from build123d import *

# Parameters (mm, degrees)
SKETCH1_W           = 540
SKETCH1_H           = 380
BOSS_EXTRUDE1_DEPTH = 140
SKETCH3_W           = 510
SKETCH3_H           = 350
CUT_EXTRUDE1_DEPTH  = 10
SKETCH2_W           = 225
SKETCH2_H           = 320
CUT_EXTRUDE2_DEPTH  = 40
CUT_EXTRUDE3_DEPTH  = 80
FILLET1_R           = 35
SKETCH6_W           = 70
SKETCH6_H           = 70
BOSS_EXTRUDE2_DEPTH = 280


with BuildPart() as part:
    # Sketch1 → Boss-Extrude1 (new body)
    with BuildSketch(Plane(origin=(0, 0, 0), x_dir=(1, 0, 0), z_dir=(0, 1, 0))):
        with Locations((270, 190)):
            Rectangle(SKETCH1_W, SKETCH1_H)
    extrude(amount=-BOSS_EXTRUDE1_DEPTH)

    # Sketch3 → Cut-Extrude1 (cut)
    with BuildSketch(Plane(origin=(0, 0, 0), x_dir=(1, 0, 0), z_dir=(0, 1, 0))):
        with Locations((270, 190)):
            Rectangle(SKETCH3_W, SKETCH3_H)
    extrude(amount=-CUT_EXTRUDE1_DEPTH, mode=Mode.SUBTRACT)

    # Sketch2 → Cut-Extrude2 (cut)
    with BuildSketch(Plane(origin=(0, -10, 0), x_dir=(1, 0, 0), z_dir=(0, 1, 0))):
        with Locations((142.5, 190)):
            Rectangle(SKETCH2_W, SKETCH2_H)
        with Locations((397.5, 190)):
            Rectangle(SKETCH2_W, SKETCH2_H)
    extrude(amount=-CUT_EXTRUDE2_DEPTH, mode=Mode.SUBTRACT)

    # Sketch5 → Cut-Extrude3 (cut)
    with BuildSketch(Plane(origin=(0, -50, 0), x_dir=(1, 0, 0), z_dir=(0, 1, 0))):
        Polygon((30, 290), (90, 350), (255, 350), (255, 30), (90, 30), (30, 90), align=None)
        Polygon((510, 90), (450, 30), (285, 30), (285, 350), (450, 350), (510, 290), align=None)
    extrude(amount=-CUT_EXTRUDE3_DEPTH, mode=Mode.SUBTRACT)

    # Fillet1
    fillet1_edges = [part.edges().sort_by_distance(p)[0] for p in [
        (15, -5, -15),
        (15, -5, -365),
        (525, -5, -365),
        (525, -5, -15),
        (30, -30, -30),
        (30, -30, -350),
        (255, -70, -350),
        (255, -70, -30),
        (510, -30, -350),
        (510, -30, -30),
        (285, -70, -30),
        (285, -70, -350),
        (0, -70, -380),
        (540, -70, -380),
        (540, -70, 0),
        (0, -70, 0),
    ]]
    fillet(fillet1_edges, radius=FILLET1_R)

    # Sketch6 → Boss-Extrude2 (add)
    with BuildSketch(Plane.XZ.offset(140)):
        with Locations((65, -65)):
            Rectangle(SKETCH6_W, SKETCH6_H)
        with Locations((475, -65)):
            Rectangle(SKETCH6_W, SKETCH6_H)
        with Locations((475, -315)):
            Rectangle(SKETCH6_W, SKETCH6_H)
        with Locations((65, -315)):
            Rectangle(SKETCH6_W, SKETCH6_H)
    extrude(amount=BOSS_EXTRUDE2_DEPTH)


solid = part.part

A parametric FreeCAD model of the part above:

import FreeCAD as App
import Part
import Sketcher
Q = App.Units.Quantity


def edges_at(feature, points):
    """Names of the edges that pass closest to the given points."""
    edges = feature.Shape.Edges
    near = lambda p: min(range(len(edges)), key=lambda i: edges[i].distToShape(Part.Vertex(*p))[0])
    return sorted({f"Edge{near(p) + 1}" for p in points})

doc = App.newDocument("Part")
body = doc.addObject("PartDesign::Body", "Body")

# Sketch on XZ plane
sketch1 = doc.addObject("Sketcher::SketchObject", "Sketch")
body.addObject(sketch1)
sketch1.AttachmentSupport = (doc.XZ_Plane, [""])
sketch1.MapMode = "FlatFace"
sketch1.addGeometry(Part.LineSegment(App.Vector(0, -380, 0), App.Vector(0, 0, 0)), False)
sketch1.addGeometry(Part.LineSegment(App.Vector(0, 0, 0), App.Vector(540, 0, 0)), False)
sketch1.addGeometry(Part.LineSegment(App.Vector(540, 0, 0), App.Vector(540, -380, 0)), False)
sketch1.addGeometry(Part.LineSegment(App.Vector(540, -380, 0), App.Vector(0, -380, 0)), False)
sketch1.addConstraint(Sketcher.Constraint("Coincident", 0, 2, 1, 1))
sketch1.addConstraint(Sketcher.Constraint("Coincident", 1, 2, 2, 1))
sketch1.addConstraint(Sketcher.Constraint("Coincident", 2, 2, 3, 1))
sketch1.addConstraint(Sketcher.Constraint("Coincident", 3, 2, 0, 1))
sketch1.addConstraint(Sketcher.Constraint("Vertical", 0))
sketch1.addConstraint(Sketcher.Constraint("Horizontal", 1))
sketch1.addConstraint(Sketcher.Constraint("Vertical", 2))
sketch1.addConstraint(Sketcher.Constraint("Horizontal", 3))
sketch1.addConstraint(Sketcher.Constraint("Coincident", 0, 2, -1, 1))
sketch1.addConstraint(Sketcher.Constraint("DistanceX", 1, 1, 1, 2, Q("540 mm")))
sketch1.addConstraint(Sketcher.Constraint("DistanceY", 0, 1, 0, 2, Q("380 mm")))
pad1 = doc.addObject("PartDesign::Pad", "Pad")
body.addObject(pad1)
pad1.Profile = sketch1
pad1.Length = 140

# Sketch on XZ plane
sketch2 = doc.addObject("Sketcher::SketchObject", "Sketch001")
body.addObject(sketch2)
sketch2.AttachmentSupport = (doc.XZ_Plane, [""])
sketch2.MapMode = "FlatFace"
sketch2.addGeometry(Part.LineSegment(App.Vector(15, -365, 0), App.Vector(15, -15, 0)), False)
sketch2.addGeometry(Part.LineSegment(App.Vector(15, -15, 0), App.Vector(525, -15, 0)), False)
sketch2.addGeometry(Part.LineSegment(App.Vector(525, -15, 0), App.Vector(525, -365, 0)), False)
sketch2.addGeometry(Part.LineSegment(App.Vector(525, -365, 0), App.Vector(15, -365, 0)), False)
sketch2.addConstraint(Sketcher.Constraint("Coincident", 0, 2, 1, 1))
sketch2.addConstraint(Sketcher.Constraint("Coincident", 1, 2, 2, 1))
sketch2.addConstraint(Sketcher.Constraint("Coincident", 2, 2, 3, 1))
sketch2.addConstraint(Sketcher.Constraint("Coincident", 3, 2, 0, 1))
sketch2.addConstraint(Sketcher.Constraint("Vertical", 0))
sketch2.addConstraint(Sketcher.Constraint("Horizontal", 1))
sketch2.addConstraint(Sketcher.Constraint("Vertical", 2))
sketch2.addConstraint(Sketcher.Constraint("Horizontal", 3))
sketch2.addConstraint(Sketcher.Constraint("DistanceX", 1, 1, 1, 2, Q("510 mm")))
sketch2.addConstraint(Sketcher.Constraint("DistanceY", 0, 1, 0, 2, Q("350 mm")))
sketch2.addConstraint(Sketcher.Constraint("DistanceX", -1, 1, 0, 2, Q("15 mm")))
sketch2.addConstraint(Sketcher.Constraint("DistanceY", 0, 2, -1, 1, Q("15 mm")))
pocket1 = doc.addObject("PartDesign::Pocket", "Pocket")
body.addObject(pocket1)
pocket1.Profile = sketch2
pocket1.Length = 10
pocket1.Reversed = True

# Sketch on XZ plane
sketch3 = doc.addObject("Sketcher::SketchObject", "Sketch002")
body.addObject(sketch3)
sketch3.AttachmentSupport = (doc.XZ_Plane, [""])
sketch3.MapMode = "FlatFace"
sketch3.AttachmentOffset = App.Placement(App.Vector(0, 0, 10), App.Rotation())
sketch3.addGeometry(Part.LineSegment(App.Vector(30, -350, 0), App.Vector(30, -30, 0)), False)
sketch3.addGeometry(Part.LineSegment(App.Vector(30, -30, 0), App.Vector(255, -30, 0)), False)
sketch3.addGeometry(Part.LineSegment(App.Vector(255, -30, 0), App.Vector(255, -350, 0)), False)
sketch3.addGeometry(Part.LineSegment(App.Vector(255, -350, 0), App.Vector(30, -350, 0)), False)
sketch3.addGeometry(Part.LineSegment(App.Vector(285, -350, 0), App.Vector(285, -30, 0)), False)
sketch3.addGeometry(Part.LineSegment(App.Vector(285, -30, 0), App.Vector(510, -30, 0)), False)
sketch3.addGeometry(Part.LineSegment(App.Vector(510, -30, 0), App.Vector(510, -350, 0)), False)
sketch3.addGeometry(Part.LineSegment(App.Vector(510, -350, 0), App.Vector(285, -350, 0)), False)
sketch3.addConstraint(Sketcher.Constraint("Coincident", 0, 2, 1, 1))
sketch3.addConstraint(Sketcher.Constraint("Coincident", 1, 2, 2, 1))
sketch3.addConstraint(Sketcher.Constraint("Coincident", 2, 2, 3, 1))
sketch3.addConstraint(Sketcher.Constraint("Coincident", 3, 2, 0, 1))
sketch3.addConstraint(Sketcher.Constraint("Coincident", 4, 2, 5, 1))
sketch3.addConstraint(Sketcher.Constraint("Coincident", 5, 2, 6, 1))
sketch3.addConstraint(Sketcher.Constraint("Coincident", 6, 2, 7, 1))
sketch3.addConstraint(Sketcher.Constraint("Coincident", 7, 2, 4, 1))
sketch3.addConstraint(Sketcher.Constraint("Vertical", 0))
sketch3.addConstraint(Sketcher.Constraint("Horizontal", 1))
sketch3.addConstraint(Sketcher.Constraint("Vertical", 2))
sketch3.addConstraint(Sketcher.Constraint("Horizontal", 3))
sketch3.addConstraint(Sketcher.Constraint("Vertical", 4))
sketch3.addConstraint(Sketcher.Constraint("Horizontal", 5))
sketch3.addConstraint(Sketcher.Constraint("Vertical", 6))
sketch3.addConstraint(Sketcher.Constraint("Horizontal", 7))
sketch3.addConstraint(Sketcher.Constraint("Horizontal", 1, 2, 4, 2))
sketch3.addConstraint(Sketcher.Constraint("Horizontal", 3, 2, 6, 2))
sketch3.addConstraint(Sketcher.Constraint("Equal", 3, 5))
sketch3.addConstraint(Sketcher.Constraint("DistanceX", 1, 1, 1, 2, Q("225 mm")))
sketch3.addConstraint(Sketcher.Constraint("DistanceY", 0, 1, 0, 2, Q("320 mm")))
sketch3.addConstraint(Sketcher.Constraint("DistanceX", -1, 1, 0, 2, Q("30 mm")))
sketch3.addConstraint(Sketcher.Constraint("DistanceY", 0, 2, -1, 1, Q("30 mm")))
sketch3.addConstraint(Sketcher.Constraint("DistanceX", -1, 1, 4, 2, Q("285 mm")))
pocket2 = doc.addObject("PartDesign::Pocket", "Pocket001")
body.addObject(pocket2)
pocket2.Profile = sketch3
pocket2.Length = 40
pocket2.Reversed = True

# Sketch on XZ plane
sketch4 = doc.addObject("Sketcher::SketchObject", "Sketch003")
body.addObject(sketch4)
sketch4.AttachmentSupport = (doc.XZ_Plane, [""])
sketch4.MapMode = "FlatFace"
sketch4.AttachmentOffset = App.Placement(App.Vector(0, 0, 50), App.Rotation())
sketch4.addGeometry(Part.LineSegment(App.Vector(90, -350, 0), App.Vector(30, -290, 0)), False)
sketch4.addGeometry(Part.LineSegment(App.Vector(30, -290, 0), App.Vector(30, -90, 0)), False)
sketch4.addGeometry(Part.LineSegment(App.Vector(30, -90, 0), App.Vector(90, -30, 0)), False)
sketch4.addGeometry(Part.LineSegment(App.Vector(90, -30, 0), App.Vector(255, -30, 0)), False)
sketch4.addGeometry(Part.LineSegment(App.Vector(255, -30, 0), App.Vector(255, -350, 0)), False)
sketch4.addGeometry(Part.LineSegment(App.Vector(255, -350, 0), App.Vector(90, -350, 0)), False)
sketch4.addGeometry(Part.LineSegment(App.Vector(450, -30, 0), App.Vector(510, -90, 0)), False)
sketch4.addGeometry(Part.LineSegment(App.Vector(510, -90, 0), App.Vector(510, -290, 0)), False)
sketch4.addGeometry(Part.LineSegment(App.Vector(510, -290, 0), App.Vector(450, -350, 0)), False)
sketch4.addGeometry(Part.LineSegment(App.Vector(450, -350, 0), App.Vector(285, -350, 0)), False)
sketch4.addGeometry(Part.LineSegment(App.Vector(285, -350, 0), App.Vector(285, -30, 0)), False)
sketch4.addGeometry(Part.LineSegment(App.Vector(285, -30, 0), App.Vector(450, -30, 0)), False)
sketch4.addConstraint(Sketcher.Constraint("Coincident", 0, 2, 1, 1))
sketch4.addConstraint(Sketcher.Constraint("Coincident", 1, 2, 2, 1))
sketch4.addConstraint(Sketcher.Constraint("Coincident", 2, 2, 3, 1))
sketch4.addConstraint(Sketcher.Constraint("Coincident", 3, 2, 4, 1))
sketch4.addConstraint(Sketcher.Constraint("Coincident", 4, 2, 5, 1))
sketch4.addConstraint(Sketcher.Constraint("Coincident", 5, 2, 0, 1))
sketch4.addConstraint(Sketcher.Constraint("Coincident", 6, 2, 7, 1))
sketch4.addConstraint(Sketcher.Constraint("Coincident", 7, 2, 8, 1))
sketch4.addConstraint(Sketcher.Constraint("Coincident", 8, 2, 9, 1))
sketch4.addConstraint(Sketcher.Constraint("Coincident", 9, 2, 10, 1))
sketch4.addConstraint(Sketcher.Constraint("Coincident", 10, 2, 11, 1))
sketch4.addConstraint(Sketcher.Constraint("Coincident", 11, 2, 6, 1))
sketch4.addConstraint(Sketcher.Constraint("Vertical", 1))
sketch4.addConstraint(Sketcher.Constraint("Horizontal", 3))
sketch4.addConstraint(Sketcher.Constraint("Vertical", 4))
sketch4.addConstraint(Sketcher.Constraint("Horizontal", 5))
sketch4.addConstraint(Sketcher.Constraint("Vertical", 7))
sketch4.addConstraint(Sketcher.Constraint("Horizontal", 9))
sketch4.addConstraint(Sketcher.Constraint("Vertical", 10))
sketch4.addConstraint(Sketcher.Constraint("Horizontal", 11))
sketch4.addConstraint(Sketcher.Constraint("Perpendicular", 0, 2))
sketch4.addConstraint(Sketcher.Constraint("Perpendicular", 2, 6))
sketch4.addConstraint(Sketcher.Constraint("Perpendicular", 6, 8))
sketch4.addConstraint(Sketcher.Constraint("Horizontal", 1, 2, 6, 2))
sketch4.addConstraint(Sketcher.Constraint("Horizontal", 0, 2, 7, 2))
sketch4.addConstraint(Sketcher.Constraint("Horizontal", 5, 2, 8, 2))
sketch4.addConstraint(Sketcher.Constraint("Horizontal", 3, 2, 10, 2))
sketch4.addConstraint(Sketcher.Constraint("Vertical", 2, 2, 5, 2))
sketch4.addConstraint(Sketcher.Constraint("Vertical", 8, 2, 11, 2))
sketch4.addConstraint(Sketcher.Constraint("Equal", 5, 9))
sketch4.addConstraint(Sketcher.Constraint("DistanceX", 3, 1, 3, 2, Q("165 mm")))
sketch4.addConstraint(Sketcher.Constraint("DistanceY", 1, 1, 1, 2, Q("200 mm")))
sketch4.addConstraint(Sketcher.Constraint("DistanceY", 4, 2, 4, 1, Q("320 mm")))
sketch4.addConstraint(Sketcher.Constraint("DistanceX", -1, 1, 0, 2, Q("30 mm")))
sketch4.addConstraint(Sketcher.Constraint("DistanceY", 0, 2, -1, 1, Q("290 mm")))
sketch4.addConstraint(Sketcher.Constraint("DistanceX", -1, 1, 6, 2, Q("510 mm")))
pocket3 = doc.addObject("PartDesign::Pocket", "Pocket002")
body.addObject(pocket3)
pocket3.Profile = sketch4
pocket3.Length = 80
pocket3.Reversed = True
doc.recompute()

fillet = doc.addObject("PartDesign::Fillet", "Fillet")
body.addObject(fillet)
fillet.Base = (pocket3, edges_at(pocket3, [
    (15, -5, -15),
    (15, -5, -365),
    (525, -5, -365),
    (525, -5, -15),
    (30, -30, -30),
    (30, -30, -350),
    (255, -70, -350),
    (255, -70, -30),
    (510, -30, -350),
    (510, -30, -30),
    (285, -70, -30),
    (285, -70, -350),
    (0, -70, -380),
    (540, -70, -380),
    (540, -70, 0),
    (0, -70, 0),
]))
fillet.Radius = 35

# Sketch on XZ plane
sketch5 = doc.addObject("Sketcher::SketchObject", "Sketch004")
body.addObject(sketch5)
sketch5.AttachmentSupport = (doc.XZ_Plane, [""])
sketch5.MapMode = "FlatFace"
sketch5.AttachmentOffset = App.Placement(App.Vector(0, 0, 140), App.Rotation())
sketch5.addGeometry(Part.LineSegment(App.Vector(30, -30, 0), App.Vector(30, -100, 0)), False)
sketch5.addGeometry(Part.LineSegment(App.Vector(30, -100, 0), App.Vector(100, -100, 0)), False)
sketch5.addGeometry(Part.LineSegment(App.Vector(100, -100, 0), App.Vector(100, -30, 0)), False)
sketch5.addGeometry(Part.LineSegment(App.Vector(100, -30, 0), App.Vector(30, -30, 0)), False)
sketch5.addGeometry(Part.LineSegment(App.Vector(440, -30, 0), App.Vector(440, -100, 0)), False)
sketch5.addGeometry(Part.LineSegment(App.Vector(440, -100, 0), App.Vector(510, -100, 0)), False)
sketch5.addGeometry(Part.LineSegment(App.Vector(510, -100, 0), App.Vector(510, -30, 0)), False)
sketch5.addGeometry(Part.LineSegment(App.Vector(510, -30, 0), App.Vector(440, -30, 0)), False)
sketch5.addGeometry(Part.LineSegment(App.Vector(440, -280, 0), App.Vector(440, -350, 0)), False)
sketch5.addGeometry(Part.LineSegment(App.Vector(440, -350, 0), App.Vector(510, -350, 0)), False)
sketch5.addGeometry(Part.LineSegment(App.Vector(510, -350, 0), App.Vector(510, -280, 0)), False)
sketch5.addGeometry(Part.LineSegment(App.Vector(510, -280, 0), App.Vector(440, -280, 0)), False)
sketch5.addGeometry(Part.LineSegment(App.Vector(30, -280, 0), App.Vector(30, -350, 0)), False)
sketch5.addGeometry(Part.LineSegment(App.Vector(30, -350, 0), App.Vector(100, -350, 0)), False)
sketch5.addGeometry(Part.LineSegment(App.Vector(100, -350, 0), App.Vector(100, -280, 0)), False)
sketch5.addGeometry(Part.LineSegment(App.Vector(100, -280, 0), App.Vector(30, -280, 0)), False)
sketch5.addConstraint(Sketcher.Constraint("Coincident", 0, 2, 1, 1))
sketch5.addConstraint(Sketcher.Constraint("Coincident", 1, 2, 2, 1))
sketch5.addConstraint(Sketcher.Constraint("Coincident", 2, 2, 3, 1))
sketch5.addConstraint(Sketcher.Constraint("Coincident", 3, 2, 0, 1))
sketch5.addConstraint(Sketcher.Constraint("Coincident", 4, 2, 5, 1))
sketch5.addConstraint(Sketcher.Constraint("Coincident", 5, 2, 6, 1))
sketch5.addConstraint(Sketcher.Constraint("Coincident", 6, 2, 7, 1))
sketch5.addConstraint(Sketcher.Constraint("Coincident", 7, 2, 4, 1))
sketch5.addConstraint(Sketcher.Constraint("Coincident", 8, 2, 9, 1))
sketch5.addConstraint(Sketcher.Constraint("Coincident", 9, 2, 10, 1))
sketch5.addConstraint(Sketcher.Constraint("Coincident", 10, 2, 11, 1))
sketch5.addConstraint(Sketcher.Constraint("Coincident", 11, 2, 8, 1))
sketch5.addConstraint(Sketcher.Constraint("Coincident", 12, 2, 13, 1))
sketch5.addConstraint(Sketcher.Constraint("Coincident", 13, 2, 14, 1))
sketch5.addConstraint(Sketcher.Constraint("Coincident", 14, 2, 15, 1))
sketch5.addConstraint(Sketcher.Constraint("Coincident", 15, 2, 12, 1))
sketch5.addConstraint(Sketcher.Constraint("Vertical", 0))
sketch5.addConstraint(Sketcher.Constraint("Horizontal", 1))
sketch5.addConstraint(Sketcher.Constraint("Vertical", 2))
sketch5.addConstraint(Sketcher.Constraint("Horizontal", 3))
sketch5.addConstraint(Sketcher.Constraint("Vertical", 4))
sketch5.addConstraint(Sketcher.Constraint("Horizontal", 5))
sketch5.addConstraint(Sketcher.Constraint("Vertical", 6))
sketch5.addConstraint(Sketcher.Constraint("Horizontal", 7))
sketch5.addConstraint(Sketcher.Constraint("Vertical", 8))
sketch5.addConstraint(Sketcher.Constraint("Horizontal", 9))
sketch5.addConstraint(Sketcher.Constraint("Vertical", 10))
sketch5.addConstraint(Sketcher.Constraint("Horizontal", 11))
sketch5.addConstraint(Sketcher.Constraint("Vertical", 12))
sketch5.addConstraint(Sketcher.Constraint("Horizontal", 13))
sketch5.addConstraint(Sketcher.Constraint("Vertical", 14))
sketch5.addConstraint(Sketcher.Constraint("Horizontal", 15))
sketch5.addConstraint(Sketcher.Constraint("Horizontal", 1, 2, 4, 2))
sketch5.addConstraint(Sketcher.Constraint("Horizontal", 3, 2, 6, 2))
sketch5.addConstraint(Sketcher.Constraint("Horizontal", 9, 2, 12, 2))
sketch5.addConstraint(Sketcher.Constraint("Horizontal", 11, 2, 14, 2))
sketch5.addConstraint(Sketcher.Constraint("Vertical", 7, 2, 8, 2))
sketch5.addConstraint(Sketcher.Constraint("Vertical", 6, 2, 9, 2))
sketch5.addConstraint(Sketcher.Constraint("Vertical", 3, 2, 12, 2))
sketch5.addConstraint(Sketcher.Constraint("Vertical", 2, 2, 13, 2))
sketch5.addConstraint(Sketcher.Constraint("Equal", 3, 5))
sketch5.addConstraint(Sketcher.Constraint("Equal", 15, 0))
sketch5.addConstraint(Sketcher.Constraint("Equal", 6, 8))
sketch5.addConstraint(Sketcher.Constraint("DistanceX", 1, 1, 1, 2, Q("70 mm")))
sketch5.addConstraint(Sketcher.Constraint("DistanceX", -1, 1, 0, 2, Q("30 mm")))
sketch5.addConstraint(Sketcher.Constraint("DistanceY", 0, 2, -1, 1, Q("100 mm")))
sketch5.addConstraint(Sketcher.Constraint("DistanceX", -1, 1, 4, 2, Q("440 mm")))
sketch5.addConstraint(Sketcher.Constraint("DistanceY", 8, 2, -1, 1, Q("350 mm")))
pad2 = doc.addObject("PartDesign::Pad", "Pad001")
body.addObject(pad2)
pad2.Profile = sketch5
pad2.Length = 280

doc.recompute()
